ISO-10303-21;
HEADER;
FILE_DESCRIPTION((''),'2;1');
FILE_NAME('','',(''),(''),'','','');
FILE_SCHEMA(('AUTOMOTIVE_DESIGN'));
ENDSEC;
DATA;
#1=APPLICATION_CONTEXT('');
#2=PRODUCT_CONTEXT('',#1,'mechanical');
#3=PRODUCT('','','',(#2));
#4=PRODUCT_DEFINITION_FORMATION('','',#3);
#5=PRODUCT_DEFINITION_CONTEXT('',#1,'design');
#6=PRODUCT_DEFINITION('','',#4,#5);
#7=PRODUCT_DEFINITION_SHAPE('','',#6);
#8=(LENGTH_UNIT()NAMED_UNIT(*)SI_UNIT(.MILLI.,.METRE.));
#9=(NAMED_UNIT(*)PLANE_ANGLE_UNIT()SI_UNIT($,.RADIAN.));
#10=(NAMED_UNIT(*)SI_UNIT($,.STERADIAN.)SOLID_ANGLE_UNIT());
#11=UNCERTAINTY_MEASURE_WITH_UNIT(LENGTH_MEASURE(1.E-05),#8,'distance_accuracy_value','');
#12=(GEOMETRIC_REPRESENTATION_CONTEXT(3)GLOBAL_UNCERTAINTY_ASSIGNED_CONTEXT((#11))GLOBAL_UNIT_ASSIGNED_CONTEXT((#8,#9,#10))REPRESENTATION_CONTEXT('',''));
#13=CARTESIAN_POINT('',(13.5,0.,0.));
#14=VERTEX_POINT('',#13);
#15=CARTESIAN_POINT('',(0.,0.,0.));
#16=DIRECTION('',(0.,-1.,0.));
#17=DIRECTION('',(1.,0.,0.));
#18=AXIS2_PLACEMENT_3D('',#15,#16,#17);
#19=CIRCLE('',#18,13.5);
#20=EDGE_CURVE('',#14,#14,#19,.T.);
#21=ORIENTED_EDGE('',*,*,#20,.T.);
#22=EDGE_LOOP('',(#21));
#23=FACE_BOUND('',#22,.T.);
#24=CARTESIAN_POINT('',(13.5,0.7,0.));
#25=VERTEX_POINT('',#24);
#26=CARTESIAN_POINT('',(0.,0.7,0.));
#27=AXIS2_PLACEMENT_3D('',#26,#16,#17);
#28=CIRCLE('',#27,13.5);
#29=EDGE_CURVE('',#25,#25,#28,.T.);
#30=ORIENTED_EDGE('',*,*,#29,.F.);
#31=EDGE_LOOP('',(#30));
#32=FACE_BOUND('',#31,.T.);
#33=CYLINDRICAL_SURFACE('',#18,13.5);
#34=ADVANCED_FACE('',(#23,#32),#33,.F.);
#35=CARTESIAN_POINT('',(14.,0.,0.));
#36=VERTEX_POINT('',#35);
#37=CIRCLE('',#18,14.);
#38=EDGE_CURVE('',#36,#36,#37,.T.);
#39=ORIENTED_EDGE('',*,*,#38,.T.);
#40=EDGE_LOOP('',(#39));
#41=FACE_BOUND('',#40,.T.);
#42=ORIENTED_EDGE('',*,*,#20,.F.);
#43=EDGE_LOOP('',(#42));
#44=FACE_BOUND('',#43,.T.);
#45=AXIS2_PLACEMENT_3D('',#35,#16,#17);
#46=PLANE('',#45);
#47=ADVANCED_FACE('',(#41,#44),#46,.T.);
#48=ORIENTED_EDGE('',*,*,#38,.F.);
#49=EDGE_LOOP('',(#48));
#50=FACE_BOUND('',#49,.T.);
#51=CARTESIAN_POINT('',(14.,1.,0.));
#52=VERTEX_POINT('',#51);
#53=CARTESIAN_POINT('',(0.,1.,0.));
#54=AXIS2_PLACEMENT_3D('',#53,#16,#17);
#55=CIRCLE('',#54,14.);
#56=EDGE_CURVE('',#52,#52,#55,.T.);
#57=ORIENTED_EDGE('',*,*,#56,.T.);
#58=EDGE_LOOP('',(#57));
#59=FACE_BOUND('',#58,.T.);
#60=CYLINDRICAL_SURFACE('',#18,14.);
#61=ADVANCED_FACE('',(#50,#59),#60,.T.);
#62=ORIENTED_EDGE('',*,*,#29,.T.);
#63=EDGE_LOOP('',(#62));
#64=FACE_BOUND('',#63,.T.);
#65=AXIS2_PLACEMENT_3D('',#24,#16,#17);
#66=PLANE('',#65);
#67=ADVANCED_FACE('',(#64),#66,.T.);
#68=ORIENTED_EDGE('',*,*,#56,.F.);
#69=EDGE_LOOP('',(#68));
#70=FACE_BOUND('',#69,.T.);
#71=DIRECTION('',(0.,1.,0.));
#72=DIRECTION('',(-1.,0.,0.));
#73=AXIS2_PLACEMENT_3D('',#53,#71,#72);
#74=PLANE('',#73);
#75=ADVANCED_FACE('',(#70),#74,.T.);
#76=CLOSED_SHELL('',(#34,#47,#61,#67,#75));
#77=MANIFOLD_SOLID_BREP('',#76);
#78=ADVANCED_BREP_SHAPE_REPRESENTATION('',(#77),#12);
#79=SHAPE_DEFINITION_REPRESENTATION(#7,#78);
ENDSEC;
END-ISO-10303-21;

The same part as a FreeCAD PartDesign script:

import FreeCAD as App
import Part
import Sketcher
from FreeCAD import Vector
Q = App.Units.Quantity


def add_polygon(sketch, points):
    """Adds a closed chain of lines whose ends are joined by coincident constraints."""
    first, n = sketch.GeometryCount, len(points)
    for a, b in zip(points, points[1:] + points[:1]):
        sketch.addGeometry(Part.LineSegment(App.Vector(*a, 0), App.Vector(*b, 0)), False)
    for i in range(n):
        sketch.addConstraint(Sketcher.Constraint("Coincident", first + i, 2, first + (i + 1) % n, 1))

doc = App.newDocument("Part")
body = doc.addObject("PartDesign::Body", "Body")

# Sketch on XY plane
sketch1 = body.newObject("Sketcher::SketchObject", "Sketch")
sketch1.AttachmentSupport = (doc.getObject("XY_Plane"), [""])
sketch1.MapMode = "FlatFace"
add_polygon(sketch1, [(14, 1), (0, 1), (0, 0.7), (13.5, 0.7), (13.5, 0), (14, 0)])  # lines 0-5
sketch1.addConstraint([
    Sketcher.Constraint("Horizontal", 0),
    Sketcher.Constraint("Vertical", 1),
    Sketcher.Constraint("Horizontal", 2),
    Sketcher.Constraint("Vertical", 3),
    Sketcher.Constraint("Horizontal", 4),
    Sketcher.Constraint("Vertical", 5),
    Sketcher.Constraint("PointOnObject", 0, 2, -2),
    Sketcher.Constraint("PointOnObject", 3, 2, -1),
    Sketcher.Constraint("DistanceX", 0, 2, 0, 1, Q("14 mm")),
    Sketcher.Constraint("DistanceY", 5, 1, 5, 2, Q("1 mm")),
    Sketcher.Constraint("DistanceX", 2, 1, 2, 2, Q("13.5 mm")),
    Sketcher.Constraint("DistanceY", 1, 2, 1, 1, Q("0.3 mm")),
])
revolution = body.newObject("PartDesign::Revolution", "Revolution")
revolution.Profile = sketch1
revolution.ReferenceAxis = (sketch1, ["V_Axis"])
revolution.Angle = 360

doc.recompute()
